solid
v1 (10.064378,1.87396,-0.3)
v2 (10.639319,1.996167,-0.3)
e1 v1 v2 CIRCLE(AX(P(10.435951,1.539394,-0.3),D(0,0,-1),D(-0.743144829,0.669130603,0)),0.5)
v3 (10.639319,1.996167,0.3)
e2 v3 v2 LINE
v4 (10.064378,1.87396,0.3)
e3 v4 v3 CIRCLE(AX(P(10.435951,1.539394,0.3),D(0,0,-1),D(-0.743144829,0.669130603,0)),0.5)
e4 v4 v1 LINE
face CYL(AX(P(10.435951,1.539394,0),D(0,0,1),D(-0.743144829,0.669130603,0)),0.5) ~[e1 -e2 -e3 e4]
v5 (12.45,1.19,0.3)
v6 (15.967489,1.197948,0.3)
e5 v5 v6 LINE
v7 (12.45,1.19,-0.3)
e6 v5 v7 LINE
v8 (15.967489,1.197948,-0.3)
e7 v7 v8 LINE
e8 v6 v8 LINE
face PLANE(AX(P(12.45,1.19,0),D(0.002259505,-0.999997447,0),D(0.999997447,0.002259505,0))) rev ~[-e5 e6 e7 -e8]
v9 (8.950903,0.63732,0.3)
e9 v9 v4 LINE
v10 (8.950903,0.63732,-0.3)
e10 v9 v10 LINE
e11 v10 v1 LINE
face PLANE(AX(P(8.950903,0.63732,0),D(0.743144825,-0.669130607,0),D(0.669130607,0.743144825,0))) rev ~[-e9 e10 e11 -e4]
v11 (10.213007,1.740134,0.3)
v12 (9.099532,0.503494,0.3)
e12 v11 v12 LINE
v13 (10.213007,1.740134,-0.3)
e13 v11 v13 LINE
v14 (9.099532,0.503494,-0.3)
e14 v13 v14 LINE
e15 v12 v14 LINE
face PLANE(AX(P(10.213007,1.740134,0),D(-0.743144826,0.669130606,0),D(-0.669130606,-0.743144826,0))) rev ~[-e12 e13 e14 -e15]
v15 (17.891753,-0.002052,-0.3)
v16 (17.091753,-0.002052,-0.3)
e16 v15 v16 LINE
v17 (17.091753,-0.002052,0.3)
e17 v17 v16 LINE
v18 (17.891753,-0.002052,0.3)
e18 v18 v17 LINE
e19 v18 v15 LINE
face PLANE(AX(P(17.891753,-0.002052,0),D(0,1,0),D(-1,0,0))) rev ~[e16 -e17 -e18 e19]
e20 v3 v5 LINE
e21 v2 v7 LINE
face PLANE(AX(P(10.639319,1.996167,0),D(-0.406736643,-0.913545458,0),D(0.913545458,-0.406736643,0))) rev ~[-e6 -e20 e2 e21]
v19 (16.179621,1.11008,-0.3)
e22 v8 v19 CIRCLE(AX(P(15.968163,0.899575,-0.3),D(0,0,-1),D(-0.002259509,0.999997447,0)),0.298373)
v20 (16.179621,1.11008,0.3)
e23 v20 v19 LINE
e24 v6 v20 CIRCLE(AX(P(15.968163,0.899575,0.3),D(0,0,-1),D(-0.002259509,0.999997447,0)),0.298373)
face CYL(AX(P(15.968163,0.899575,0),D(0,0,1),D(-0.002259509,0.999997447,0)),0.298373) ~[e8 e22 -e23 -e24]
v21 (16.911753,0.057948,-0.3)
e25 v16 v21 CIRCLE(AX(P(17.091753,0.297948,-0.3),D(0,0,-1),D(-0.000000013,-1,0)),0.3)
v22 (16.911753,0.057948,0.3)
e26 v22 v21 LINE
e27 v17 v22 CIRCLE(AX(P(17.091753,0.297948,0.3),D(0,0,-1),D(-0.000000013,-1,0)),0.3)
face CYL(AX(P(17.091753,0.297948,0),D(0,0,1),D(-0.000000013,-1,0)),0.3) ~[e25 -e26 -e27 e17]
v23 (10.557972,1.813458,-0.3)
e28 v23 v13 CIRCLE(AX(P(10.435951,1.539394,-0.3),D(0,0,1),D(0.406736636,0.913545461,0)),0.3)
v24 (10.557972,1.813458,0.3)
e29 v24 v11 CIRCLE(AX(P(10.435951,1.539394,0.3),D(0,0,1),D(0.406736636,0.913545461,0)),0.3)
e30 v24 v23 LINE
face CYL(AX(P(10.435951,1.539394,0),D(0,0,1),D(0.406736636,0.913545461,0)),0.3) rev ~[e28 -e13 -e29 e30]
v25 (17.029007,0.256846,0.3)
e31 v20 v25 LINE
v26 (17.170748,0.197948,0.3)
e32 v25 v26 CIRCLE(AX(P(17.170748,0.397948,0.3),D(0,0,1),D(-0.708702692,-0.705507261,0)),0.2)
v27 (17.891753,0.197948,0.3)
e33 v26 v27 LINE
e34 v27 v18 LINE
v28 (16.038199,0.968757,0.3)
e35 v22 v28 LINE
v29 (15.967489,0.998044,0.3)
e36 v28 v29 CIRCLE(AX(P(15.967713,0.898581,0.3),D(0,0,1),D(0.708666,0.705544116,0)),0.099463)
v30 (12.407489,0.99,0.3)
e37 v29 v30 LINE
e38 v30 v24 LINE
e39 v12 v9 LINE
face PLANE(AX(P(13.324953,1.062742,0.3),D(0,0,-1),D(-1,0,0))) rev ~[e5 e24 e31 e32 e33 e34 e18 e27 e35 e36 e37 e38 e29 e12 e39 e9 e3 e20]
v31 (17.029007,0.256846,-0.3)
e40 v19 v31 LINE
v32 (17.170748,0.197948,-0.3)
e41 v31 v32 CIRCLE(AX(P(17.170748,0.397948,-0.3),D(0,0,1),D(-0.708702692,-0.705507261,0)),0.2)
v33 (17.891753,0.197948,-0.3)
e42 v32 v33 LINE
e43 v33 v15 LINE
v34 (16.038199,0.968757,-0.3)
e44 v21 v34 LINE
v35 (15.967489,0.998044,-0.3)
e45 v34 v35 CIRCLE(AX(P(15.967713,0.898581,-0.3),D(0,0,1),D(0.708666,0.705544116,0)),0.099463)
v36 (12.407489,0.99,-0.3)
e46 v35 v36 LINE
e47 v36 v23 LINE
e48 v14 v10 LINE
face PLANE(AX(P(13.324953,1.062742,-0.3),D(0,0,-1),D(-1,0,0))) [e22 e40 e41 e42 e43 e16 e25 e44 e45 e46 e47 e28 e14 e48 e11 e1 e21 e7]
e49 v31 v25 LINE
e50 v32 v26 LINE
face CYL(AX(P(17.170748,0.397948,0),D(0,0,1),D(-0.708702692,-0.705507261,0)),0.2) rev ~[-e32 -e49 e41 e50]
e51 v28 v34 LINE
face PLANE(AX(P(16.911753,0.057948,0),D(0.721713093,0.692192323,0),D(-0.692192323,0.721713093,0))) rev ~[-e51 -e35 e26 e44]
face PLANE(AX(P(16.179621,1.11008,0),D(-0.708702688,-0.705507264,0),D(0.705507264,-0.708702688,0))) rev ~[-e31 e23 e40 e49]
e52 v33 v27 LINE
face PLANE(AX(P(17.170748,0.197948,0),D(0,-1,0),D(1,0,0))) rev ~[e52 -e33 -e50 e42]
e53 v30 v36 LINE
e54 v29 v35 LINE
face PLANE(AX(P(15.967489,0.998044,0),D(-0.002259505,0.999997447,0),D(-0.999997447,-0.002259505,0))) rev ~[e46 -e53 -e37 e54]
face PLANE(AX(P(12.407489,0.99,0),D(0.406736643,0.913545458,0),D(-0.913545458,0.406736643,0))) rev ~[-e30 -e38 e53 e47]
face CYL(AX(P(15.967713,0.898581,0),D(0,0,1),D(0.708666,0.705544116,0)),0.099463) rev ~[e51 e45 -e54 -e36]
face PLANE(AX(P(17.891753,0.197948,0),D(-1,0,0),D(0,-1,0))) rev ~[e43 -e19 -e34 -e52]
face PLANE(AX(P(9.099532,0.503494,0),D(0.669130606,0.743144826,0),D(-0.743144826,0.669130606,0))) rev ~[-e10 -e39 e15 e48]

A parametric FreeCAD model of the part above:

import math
import FreeCAD as App
import Part
import Sketcher
Q = App.Units.Quantity

doc = App.newDocument("Part")
body = doc.addObject("PartDesign::Body", "Body")

# Sketch on XY plane
sketch1 = body.newObject("Sketcher::SketchObject", "Sketch")
sketch1.AttachmentSupport = (doc.getObject("XY_Plane"), [""])
sketch1.MapMode = "FlatFace"
sketch1.addGeometry([
    Part.LineSegment(App.Vector(17.891753, -0.002052, 0), App.Vector(17.891753, 0.197948, 0)),  # 0
    Part.LineSegment(App.Vector(17.891753, 0.197948, 0), App.Vector(17.170748, 0.197948, 0)),  # 1
    Part.ArcOfCircle(Part.Circle(App.Vector(17.170748, 0.397948, 0), App.Vector(0, 0, 1), 0.2), math.radians(-135.129461), math.radians(-90)),  # 2
    Part.LineSegment(App.Vector(17.029007, 0.256846, 0), App.Vector(16.179621, 1.11008, 0)),  # 3
    Part.ArcOfCircle(Part.Circle(App.Vector(15.968163, 0.899575, 0), App.Vector(0, 0, 1), 0.298373), math.radians(44.87054), math.radians(90.12946)),  # 4
    Part.LineSegment(App.Vector(15.967489, 1.197948, 0), App.Vector(12.45, 1.19, 0)),  # 5
    Part.LineSegment(App.Vector(12.45, 1.19, 0), App.Vector(10.639319, 1.996167, 0)),  # 6
    Part.ArcOfCircle(Part.Circle(App.Vector(10.435951, 1.539394, 0), App.Vector(0, 0, 1), 0.5), math.radians(66), math.radians(138)),  # 7
    Part.LineSegment(App.Vector(10.064378, 1.87396, 0), App.Vector(8.950903, 0.63732, 0)),  # 8
    Part.LineSegment(App.Vector(8.950903, 0.63732, 0), App.Vector(9.099532, 0.503494, 0)),  # 9
    Part.LineSegment(App.Vector(9.099532, 0.503494, 0), App.Vector(10.213007, 1.740134, 0)),  # 10
    Part.ArcOfCircle(Part.Circle(App.Vector(10.435951, 1.539394, 0), App.Vector(0, 0, 1), 0.3), math.radians(66), math.radians(138)),  # 11
    Part.LineSegment(App.Vector(10.557972, 1.813458, 0), App.Vector(12.407489, 0.99, 0)),  # 12
    Part.LineSegment(App.Vector(12.407489, 0.99, 0), App.Vector(15.967489, 0.998044, 0)),  # 13
    Part.ArcOfCircle(Part.Circle(App.Vector(15.967713, 0.898581, 0), App.Vector(0, 0, 1), 0.099463), math.radians(44.873519), math.radians(90.129459)),  # 14
    Part.LineSegment(App.Vector(16.038199, 0.968757, 0), App.Vector(16.911753, 0.057948, 0)),  # 15
    Part.ArcOfCircle(Part.Circle(App.Vector(17.091753, 0.297948, 0), App.Vector(0, 0, 1), 0.3), math.radians(-126.869897), math.radians(-90.000001)),  # 16
    Part.LineSegment(App.Vector(17.091753, -0.002052, 0), App.Vector(17.891753, -0.002052, 0)),  # 17
], False)
sketch1.addConstraint([
    Sketcher.Constraint("Coincident", 0, 2, 1, 1),
    Sketcher.Constraint("Coincident", 1, 2, 2, 2),
    Sketcher.Constraint("Coincident", 2, 1, 3, 1),
    Sketcher.Constraint("Coincident", 3, 2, 4, 1),
    Sketcher.Constraint("Coincident", 4, 2, 5, 1),
    Sketcher.Constraint("Coincident", 5, 2, 6, 1),
    Sketcher.Constraint("Coincident", 6, 2, 7, 1),
    Sketcher.Constraint("Coincident", 7, 2, 8, 1),
    Sketcher.Constraint("Coincident", 8, 2, 9, 1),
    Sketcher.Constraint("Coincident", 9, 2, 10, 1),
    Sketcher.Constraint("Coincident", 10, 2, 11, 2),
    Sketcher.Constraint("Coincident", 11, 1, 12, 1),
    Sketcher.Constraint("Coincident", 12, 2, 13, 1),
    Sketcher.Constraint("Coincident", 13, 2, 14, 2),
    Sketcher.Constraint("Coincident", 14, 1, 15, 1),
    Sketcher.Constraint("Coincident", 15, 2, 16, 1),
    Sketcher.Constraint("Coincident", 16, 2, 17, 1),
    Sketcher.Constraint("Coincident", 17, 2, 0, 1),
    Sketcher.Constraint("Vertical", 0),
    Sketcher.Constraint("Horizontal", 1),
    Sketcher.Constraint("Horizontal", 17),
    Sketcher.Constraint("Coincident", 11, 3, 7, 3),
    Sketcher.Constraint("Radius", 2, Q("0.2 mm")),
    Sketcher.Constraint("Radius", 7, Q("0.5 mm")),
    Sketcher.Constraint("Radius", 11, Q("0.3 mm")),
    Sketcher.Constraint("Radius", 16, Q("0.3 mm")),
    Sketcher.Constraint("DistanceX", 17, 1, 17, 2, Q("0.8 mm")),
    Sketcher.Constraint("DistanceY", 0, 1, 0, 2, Q("0.2 mm")),
    Sketcher.Constraint("Distance", 9, Q("0.2 mm")),
    Sketcher.Constraint("DistanceX", 16, 3, 0, 2, Q("0.8 mm")),
    Sketcher.Constraint("DistanceY", 16, 3, 4, 2, Q("0.9 mm")),
    Sketcher.Constraint("DistanceY", 12, 2, 5, 2, Q("0.2 mm")),
    Sketcher.Constraint("DistanceX", -1, 1, 5, 2, Q("12.45 mm")),
    Sketcher.Constraint("DistanceY", -1, 1, 5, 2, Q("1.19 mm")),
    Sketcher.Constraint("DistanceY", 15, 2, 1, 2, Q("0.14 mm")),
    Sketcher.Constraint("Radius", 4, Q("0.298373 mm")),
    Sketcher.Constraint("Radius", 14, Q("0.099463 mm")),
    Sketcher.Constraint("DistanceX", -1, 1, 14, 1, Q("16.038199 mm")),
    Sketcher.Constraint("DistanceY", 2, 1, 16, 3, Q("0.041101 mm")),
    Sketcher.Constraint("DistanceY", 14, 3, 3, 2, Q("0.211499 mm")),
    Sketcher.Constraint("DistanceY", 9, 2, 11, 3, Q("1.0359 mm")),
    Sketcher.Constraint("DistanceY", 11, 1, 7, 2, Q("0.060502 mm")),
    Sketcher.Constraint("Distance", 12, Q("2.024549 mm")),
    Sketcher.Constraint("Distance", 13, Q("3.560009 mm")),
    Sketcher.Constraint("Distance", 15, Q("1.26201 mm")),
    Sketcher.Constraint("DistanceX", 1, 2, 1, 1, Q("0.721005 mm")),
    Sketcher.Constraint("DistanceX", -1, 1, 7, 3, Q("10.435951 mm")),
    Sketcher.Constraint("DistanceY", -1, 1, 14, 3, Q("0.898581 mm")),
    Sketcher.Constraint("DistanceX", -1, 1, 3, 2, Q("16.179621 mm")),
    Sketcher.Constraint("DistanceX", -1, 1, 4, 2, Q("15.967489 mm")),
    Sketcher.Constraint("DistanceX", -1, 1, 6, 2, Q("10.639319 mm")),
    Sketcher.Constraint("DistanceX", -1, 1, 7, 2, Q("10.064378 mm")),
    Sketcher.Constraint("DistanceY", -1, 1, 7, 2, Q("1.87396 mm")),
    Sketcher.Constraint("DistanceY", -1, 1, 8, 2, Q("0.63732 mm")),
    Sketcher.Constraint("DistanceX", -1, 1, 9, 2, Q("9.099532 mm")),
    Sketcher.Constraint("DistanceY", 4, 3, 7, 3, Q("0.639819 mm")),
    Sketcher.Constraint("DistanceX", 14, 3, 4, 3, Q("0.000449 mm")),
    Sketcher.Constraint("DistanceX", 2, 1, 1, 2, Q("0.141741 mm")),
    Sketcher.Constraint("DistanceX", 7, 2, 10, 2, Q("0.148629 mm")),
])
pad1 = body.newObject("PartDesign::Pad", "Pad")
pad1.Profile = sketch1
pad1.Length = 0.6
pad1.Midplane = True

doc.recompute()
